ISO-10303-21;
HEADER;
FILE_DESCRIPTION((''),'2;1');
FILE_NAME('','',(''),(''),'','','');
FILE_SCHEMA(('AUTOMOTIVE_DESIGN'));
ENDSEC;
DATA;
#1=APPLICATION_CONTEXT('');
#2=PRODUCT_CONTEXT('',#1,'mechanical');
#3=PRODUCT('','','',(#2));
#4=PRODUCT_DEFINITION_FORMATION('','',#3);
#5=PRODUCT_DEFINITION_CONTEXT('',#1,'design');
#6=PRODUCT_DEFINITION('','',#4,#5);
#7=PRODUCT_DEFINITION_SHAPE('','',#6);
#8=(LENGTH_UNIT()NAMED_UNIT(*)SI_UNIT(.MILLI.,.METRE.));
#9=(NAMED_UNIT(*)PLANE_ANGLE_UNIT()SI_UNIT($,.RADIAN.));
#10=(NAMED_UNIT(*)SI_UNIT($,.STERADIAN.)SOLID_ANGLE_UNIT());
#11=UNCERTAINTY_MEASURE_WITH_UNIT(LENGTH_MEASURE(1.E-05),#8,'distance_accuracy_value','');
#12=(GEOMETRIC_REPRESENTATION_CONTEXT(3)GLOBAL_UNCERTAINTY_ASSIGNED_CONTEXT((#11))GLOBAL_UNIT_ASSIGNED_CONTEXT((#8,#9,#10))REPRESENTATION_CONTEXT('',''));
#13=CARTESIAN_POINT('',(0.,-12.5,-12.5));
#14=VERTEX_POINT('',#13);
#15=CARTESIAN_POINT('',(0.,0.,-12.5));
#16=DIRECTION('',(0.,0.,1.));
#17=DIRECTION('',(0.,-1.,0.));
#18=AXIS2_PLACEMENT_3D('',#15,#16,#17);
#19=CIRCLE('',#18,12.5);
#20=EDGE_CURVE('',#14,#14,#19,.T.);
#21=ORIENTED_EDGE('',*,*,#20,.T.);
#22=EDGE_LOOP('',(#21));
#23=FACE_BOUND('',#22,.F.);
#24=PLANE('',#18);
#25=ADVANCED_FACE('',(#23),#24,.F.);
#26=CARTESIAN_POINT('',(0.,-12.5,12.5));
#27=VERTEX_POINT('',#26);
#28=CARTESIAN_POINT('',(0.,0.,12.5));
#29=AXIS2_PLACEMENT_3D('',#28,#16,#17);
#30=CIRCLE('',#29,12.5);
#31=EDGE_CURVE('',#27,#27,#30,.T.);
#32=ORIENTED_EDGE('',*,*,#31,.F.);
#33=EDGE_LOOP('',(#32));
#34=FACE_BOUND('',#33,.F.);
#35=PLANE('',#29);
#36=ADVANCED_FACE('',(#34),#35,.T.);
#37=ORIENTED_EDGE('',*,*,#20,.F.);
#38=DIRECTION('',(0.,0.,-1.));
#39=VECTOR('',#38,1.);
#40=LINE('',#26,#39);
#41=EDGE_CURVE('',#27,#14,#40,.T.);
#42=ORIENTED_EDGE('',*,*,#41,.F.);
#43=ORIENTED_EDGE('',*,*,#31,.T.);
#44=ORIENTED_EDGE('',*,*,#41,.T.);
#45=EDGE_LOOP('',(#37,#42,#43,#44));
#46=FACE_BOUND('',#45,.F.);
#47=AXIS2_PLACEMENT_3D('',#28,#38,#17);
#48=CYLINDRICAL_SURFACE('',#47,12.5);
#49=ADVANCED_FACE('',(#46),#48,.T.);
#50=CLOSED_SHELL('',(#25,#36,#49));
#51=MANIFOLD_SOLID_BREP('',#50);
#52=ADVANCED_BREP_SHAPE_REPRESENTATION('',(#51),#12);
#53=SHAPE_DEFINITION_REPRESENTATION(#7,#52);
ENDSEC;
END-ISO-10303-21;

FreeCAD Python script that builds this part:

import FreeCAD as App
import Part
import Sketcher

V = App.Vector

doc = App.newDocument("Part")
params = doc.addObject("Spreadsheet::Sheet", "Params")
for row, (alias, value) in enumerate([
    ("sketch1_height", "25 mm"),
    ("sketch1_width", "12.5 mm"),
    ("revolution_angle", "360 deg"),
], start=1):
    params.set(f"A{row}", alias)
    params.set(f"B{row}", "=" + value)
    params.setAlias(f"B{row}", alias)

body = doc.addObject("PartDesign::Body", "Body")

# Sketch on YZ plane
sketch1 = body.newObject("Sketcher::SketchObject", "Sketch")
sketch1.AttachmentSupport = (doc.getObject("YZ_Plane"), [""])
sketch1.MapMode = "FlatFace"
sketch1.addGeometry([
    Part.LineSegment(V(0, -12, 0), V(0, 12, 0)),
    Part.LineSegment(V(0, 12, 0), V(-12, 12, 0)),
    Part.LineSegment(V(-12, 12, 0), V(-12, -12, 0)),
    Part.LineSegment(V(-12, -12, 0), V(0, -12, 0)),
], False)
sketch1.addConstraint([
    Sketcher.Constraint("Coincident", 0, 2, 1, 1),
    Sketcher.Constraint("Coincident", 1, 2, 2, 1),
    Sketcher.Constraint("Coincident", 2, 2, 3, 1),
    Sketcher.Constraint("Coincident", 3, 2, 0, 1),
    Sketcher.Constraint("Vertical", 0),
    Sketcher.Constraint("Horizontal", 1),
    Sketcher.Constraint("Vertical", 2),
    Sketcher.Constraint("Horizontal", 3),
    Sketcher.Constraint("Symmetric", 0, 2, 3, 2, -1, 1),
    Sketcher.Constraint("DistanceY", 0, 1, 0, 2, 25.0),
    Sketcher.Constraint("DistanceX", 1, 2, 1, 1, 12.5),
])
sketch1.setExpression("Constraints[9]", "Params.sketch1_height")
sketch1.setExpression("Constraints[10]", "Params.sketch1_width")
revolution = body.newObject("PartDesign::Revolution", "Revolution")
revolution.Profile = sketch1
revolution.ReferenceAxis = (sketch1, ["V_Axis"])
revolution.setExpression("Angle", "Params.revolution_angle")

doc.recompute()
